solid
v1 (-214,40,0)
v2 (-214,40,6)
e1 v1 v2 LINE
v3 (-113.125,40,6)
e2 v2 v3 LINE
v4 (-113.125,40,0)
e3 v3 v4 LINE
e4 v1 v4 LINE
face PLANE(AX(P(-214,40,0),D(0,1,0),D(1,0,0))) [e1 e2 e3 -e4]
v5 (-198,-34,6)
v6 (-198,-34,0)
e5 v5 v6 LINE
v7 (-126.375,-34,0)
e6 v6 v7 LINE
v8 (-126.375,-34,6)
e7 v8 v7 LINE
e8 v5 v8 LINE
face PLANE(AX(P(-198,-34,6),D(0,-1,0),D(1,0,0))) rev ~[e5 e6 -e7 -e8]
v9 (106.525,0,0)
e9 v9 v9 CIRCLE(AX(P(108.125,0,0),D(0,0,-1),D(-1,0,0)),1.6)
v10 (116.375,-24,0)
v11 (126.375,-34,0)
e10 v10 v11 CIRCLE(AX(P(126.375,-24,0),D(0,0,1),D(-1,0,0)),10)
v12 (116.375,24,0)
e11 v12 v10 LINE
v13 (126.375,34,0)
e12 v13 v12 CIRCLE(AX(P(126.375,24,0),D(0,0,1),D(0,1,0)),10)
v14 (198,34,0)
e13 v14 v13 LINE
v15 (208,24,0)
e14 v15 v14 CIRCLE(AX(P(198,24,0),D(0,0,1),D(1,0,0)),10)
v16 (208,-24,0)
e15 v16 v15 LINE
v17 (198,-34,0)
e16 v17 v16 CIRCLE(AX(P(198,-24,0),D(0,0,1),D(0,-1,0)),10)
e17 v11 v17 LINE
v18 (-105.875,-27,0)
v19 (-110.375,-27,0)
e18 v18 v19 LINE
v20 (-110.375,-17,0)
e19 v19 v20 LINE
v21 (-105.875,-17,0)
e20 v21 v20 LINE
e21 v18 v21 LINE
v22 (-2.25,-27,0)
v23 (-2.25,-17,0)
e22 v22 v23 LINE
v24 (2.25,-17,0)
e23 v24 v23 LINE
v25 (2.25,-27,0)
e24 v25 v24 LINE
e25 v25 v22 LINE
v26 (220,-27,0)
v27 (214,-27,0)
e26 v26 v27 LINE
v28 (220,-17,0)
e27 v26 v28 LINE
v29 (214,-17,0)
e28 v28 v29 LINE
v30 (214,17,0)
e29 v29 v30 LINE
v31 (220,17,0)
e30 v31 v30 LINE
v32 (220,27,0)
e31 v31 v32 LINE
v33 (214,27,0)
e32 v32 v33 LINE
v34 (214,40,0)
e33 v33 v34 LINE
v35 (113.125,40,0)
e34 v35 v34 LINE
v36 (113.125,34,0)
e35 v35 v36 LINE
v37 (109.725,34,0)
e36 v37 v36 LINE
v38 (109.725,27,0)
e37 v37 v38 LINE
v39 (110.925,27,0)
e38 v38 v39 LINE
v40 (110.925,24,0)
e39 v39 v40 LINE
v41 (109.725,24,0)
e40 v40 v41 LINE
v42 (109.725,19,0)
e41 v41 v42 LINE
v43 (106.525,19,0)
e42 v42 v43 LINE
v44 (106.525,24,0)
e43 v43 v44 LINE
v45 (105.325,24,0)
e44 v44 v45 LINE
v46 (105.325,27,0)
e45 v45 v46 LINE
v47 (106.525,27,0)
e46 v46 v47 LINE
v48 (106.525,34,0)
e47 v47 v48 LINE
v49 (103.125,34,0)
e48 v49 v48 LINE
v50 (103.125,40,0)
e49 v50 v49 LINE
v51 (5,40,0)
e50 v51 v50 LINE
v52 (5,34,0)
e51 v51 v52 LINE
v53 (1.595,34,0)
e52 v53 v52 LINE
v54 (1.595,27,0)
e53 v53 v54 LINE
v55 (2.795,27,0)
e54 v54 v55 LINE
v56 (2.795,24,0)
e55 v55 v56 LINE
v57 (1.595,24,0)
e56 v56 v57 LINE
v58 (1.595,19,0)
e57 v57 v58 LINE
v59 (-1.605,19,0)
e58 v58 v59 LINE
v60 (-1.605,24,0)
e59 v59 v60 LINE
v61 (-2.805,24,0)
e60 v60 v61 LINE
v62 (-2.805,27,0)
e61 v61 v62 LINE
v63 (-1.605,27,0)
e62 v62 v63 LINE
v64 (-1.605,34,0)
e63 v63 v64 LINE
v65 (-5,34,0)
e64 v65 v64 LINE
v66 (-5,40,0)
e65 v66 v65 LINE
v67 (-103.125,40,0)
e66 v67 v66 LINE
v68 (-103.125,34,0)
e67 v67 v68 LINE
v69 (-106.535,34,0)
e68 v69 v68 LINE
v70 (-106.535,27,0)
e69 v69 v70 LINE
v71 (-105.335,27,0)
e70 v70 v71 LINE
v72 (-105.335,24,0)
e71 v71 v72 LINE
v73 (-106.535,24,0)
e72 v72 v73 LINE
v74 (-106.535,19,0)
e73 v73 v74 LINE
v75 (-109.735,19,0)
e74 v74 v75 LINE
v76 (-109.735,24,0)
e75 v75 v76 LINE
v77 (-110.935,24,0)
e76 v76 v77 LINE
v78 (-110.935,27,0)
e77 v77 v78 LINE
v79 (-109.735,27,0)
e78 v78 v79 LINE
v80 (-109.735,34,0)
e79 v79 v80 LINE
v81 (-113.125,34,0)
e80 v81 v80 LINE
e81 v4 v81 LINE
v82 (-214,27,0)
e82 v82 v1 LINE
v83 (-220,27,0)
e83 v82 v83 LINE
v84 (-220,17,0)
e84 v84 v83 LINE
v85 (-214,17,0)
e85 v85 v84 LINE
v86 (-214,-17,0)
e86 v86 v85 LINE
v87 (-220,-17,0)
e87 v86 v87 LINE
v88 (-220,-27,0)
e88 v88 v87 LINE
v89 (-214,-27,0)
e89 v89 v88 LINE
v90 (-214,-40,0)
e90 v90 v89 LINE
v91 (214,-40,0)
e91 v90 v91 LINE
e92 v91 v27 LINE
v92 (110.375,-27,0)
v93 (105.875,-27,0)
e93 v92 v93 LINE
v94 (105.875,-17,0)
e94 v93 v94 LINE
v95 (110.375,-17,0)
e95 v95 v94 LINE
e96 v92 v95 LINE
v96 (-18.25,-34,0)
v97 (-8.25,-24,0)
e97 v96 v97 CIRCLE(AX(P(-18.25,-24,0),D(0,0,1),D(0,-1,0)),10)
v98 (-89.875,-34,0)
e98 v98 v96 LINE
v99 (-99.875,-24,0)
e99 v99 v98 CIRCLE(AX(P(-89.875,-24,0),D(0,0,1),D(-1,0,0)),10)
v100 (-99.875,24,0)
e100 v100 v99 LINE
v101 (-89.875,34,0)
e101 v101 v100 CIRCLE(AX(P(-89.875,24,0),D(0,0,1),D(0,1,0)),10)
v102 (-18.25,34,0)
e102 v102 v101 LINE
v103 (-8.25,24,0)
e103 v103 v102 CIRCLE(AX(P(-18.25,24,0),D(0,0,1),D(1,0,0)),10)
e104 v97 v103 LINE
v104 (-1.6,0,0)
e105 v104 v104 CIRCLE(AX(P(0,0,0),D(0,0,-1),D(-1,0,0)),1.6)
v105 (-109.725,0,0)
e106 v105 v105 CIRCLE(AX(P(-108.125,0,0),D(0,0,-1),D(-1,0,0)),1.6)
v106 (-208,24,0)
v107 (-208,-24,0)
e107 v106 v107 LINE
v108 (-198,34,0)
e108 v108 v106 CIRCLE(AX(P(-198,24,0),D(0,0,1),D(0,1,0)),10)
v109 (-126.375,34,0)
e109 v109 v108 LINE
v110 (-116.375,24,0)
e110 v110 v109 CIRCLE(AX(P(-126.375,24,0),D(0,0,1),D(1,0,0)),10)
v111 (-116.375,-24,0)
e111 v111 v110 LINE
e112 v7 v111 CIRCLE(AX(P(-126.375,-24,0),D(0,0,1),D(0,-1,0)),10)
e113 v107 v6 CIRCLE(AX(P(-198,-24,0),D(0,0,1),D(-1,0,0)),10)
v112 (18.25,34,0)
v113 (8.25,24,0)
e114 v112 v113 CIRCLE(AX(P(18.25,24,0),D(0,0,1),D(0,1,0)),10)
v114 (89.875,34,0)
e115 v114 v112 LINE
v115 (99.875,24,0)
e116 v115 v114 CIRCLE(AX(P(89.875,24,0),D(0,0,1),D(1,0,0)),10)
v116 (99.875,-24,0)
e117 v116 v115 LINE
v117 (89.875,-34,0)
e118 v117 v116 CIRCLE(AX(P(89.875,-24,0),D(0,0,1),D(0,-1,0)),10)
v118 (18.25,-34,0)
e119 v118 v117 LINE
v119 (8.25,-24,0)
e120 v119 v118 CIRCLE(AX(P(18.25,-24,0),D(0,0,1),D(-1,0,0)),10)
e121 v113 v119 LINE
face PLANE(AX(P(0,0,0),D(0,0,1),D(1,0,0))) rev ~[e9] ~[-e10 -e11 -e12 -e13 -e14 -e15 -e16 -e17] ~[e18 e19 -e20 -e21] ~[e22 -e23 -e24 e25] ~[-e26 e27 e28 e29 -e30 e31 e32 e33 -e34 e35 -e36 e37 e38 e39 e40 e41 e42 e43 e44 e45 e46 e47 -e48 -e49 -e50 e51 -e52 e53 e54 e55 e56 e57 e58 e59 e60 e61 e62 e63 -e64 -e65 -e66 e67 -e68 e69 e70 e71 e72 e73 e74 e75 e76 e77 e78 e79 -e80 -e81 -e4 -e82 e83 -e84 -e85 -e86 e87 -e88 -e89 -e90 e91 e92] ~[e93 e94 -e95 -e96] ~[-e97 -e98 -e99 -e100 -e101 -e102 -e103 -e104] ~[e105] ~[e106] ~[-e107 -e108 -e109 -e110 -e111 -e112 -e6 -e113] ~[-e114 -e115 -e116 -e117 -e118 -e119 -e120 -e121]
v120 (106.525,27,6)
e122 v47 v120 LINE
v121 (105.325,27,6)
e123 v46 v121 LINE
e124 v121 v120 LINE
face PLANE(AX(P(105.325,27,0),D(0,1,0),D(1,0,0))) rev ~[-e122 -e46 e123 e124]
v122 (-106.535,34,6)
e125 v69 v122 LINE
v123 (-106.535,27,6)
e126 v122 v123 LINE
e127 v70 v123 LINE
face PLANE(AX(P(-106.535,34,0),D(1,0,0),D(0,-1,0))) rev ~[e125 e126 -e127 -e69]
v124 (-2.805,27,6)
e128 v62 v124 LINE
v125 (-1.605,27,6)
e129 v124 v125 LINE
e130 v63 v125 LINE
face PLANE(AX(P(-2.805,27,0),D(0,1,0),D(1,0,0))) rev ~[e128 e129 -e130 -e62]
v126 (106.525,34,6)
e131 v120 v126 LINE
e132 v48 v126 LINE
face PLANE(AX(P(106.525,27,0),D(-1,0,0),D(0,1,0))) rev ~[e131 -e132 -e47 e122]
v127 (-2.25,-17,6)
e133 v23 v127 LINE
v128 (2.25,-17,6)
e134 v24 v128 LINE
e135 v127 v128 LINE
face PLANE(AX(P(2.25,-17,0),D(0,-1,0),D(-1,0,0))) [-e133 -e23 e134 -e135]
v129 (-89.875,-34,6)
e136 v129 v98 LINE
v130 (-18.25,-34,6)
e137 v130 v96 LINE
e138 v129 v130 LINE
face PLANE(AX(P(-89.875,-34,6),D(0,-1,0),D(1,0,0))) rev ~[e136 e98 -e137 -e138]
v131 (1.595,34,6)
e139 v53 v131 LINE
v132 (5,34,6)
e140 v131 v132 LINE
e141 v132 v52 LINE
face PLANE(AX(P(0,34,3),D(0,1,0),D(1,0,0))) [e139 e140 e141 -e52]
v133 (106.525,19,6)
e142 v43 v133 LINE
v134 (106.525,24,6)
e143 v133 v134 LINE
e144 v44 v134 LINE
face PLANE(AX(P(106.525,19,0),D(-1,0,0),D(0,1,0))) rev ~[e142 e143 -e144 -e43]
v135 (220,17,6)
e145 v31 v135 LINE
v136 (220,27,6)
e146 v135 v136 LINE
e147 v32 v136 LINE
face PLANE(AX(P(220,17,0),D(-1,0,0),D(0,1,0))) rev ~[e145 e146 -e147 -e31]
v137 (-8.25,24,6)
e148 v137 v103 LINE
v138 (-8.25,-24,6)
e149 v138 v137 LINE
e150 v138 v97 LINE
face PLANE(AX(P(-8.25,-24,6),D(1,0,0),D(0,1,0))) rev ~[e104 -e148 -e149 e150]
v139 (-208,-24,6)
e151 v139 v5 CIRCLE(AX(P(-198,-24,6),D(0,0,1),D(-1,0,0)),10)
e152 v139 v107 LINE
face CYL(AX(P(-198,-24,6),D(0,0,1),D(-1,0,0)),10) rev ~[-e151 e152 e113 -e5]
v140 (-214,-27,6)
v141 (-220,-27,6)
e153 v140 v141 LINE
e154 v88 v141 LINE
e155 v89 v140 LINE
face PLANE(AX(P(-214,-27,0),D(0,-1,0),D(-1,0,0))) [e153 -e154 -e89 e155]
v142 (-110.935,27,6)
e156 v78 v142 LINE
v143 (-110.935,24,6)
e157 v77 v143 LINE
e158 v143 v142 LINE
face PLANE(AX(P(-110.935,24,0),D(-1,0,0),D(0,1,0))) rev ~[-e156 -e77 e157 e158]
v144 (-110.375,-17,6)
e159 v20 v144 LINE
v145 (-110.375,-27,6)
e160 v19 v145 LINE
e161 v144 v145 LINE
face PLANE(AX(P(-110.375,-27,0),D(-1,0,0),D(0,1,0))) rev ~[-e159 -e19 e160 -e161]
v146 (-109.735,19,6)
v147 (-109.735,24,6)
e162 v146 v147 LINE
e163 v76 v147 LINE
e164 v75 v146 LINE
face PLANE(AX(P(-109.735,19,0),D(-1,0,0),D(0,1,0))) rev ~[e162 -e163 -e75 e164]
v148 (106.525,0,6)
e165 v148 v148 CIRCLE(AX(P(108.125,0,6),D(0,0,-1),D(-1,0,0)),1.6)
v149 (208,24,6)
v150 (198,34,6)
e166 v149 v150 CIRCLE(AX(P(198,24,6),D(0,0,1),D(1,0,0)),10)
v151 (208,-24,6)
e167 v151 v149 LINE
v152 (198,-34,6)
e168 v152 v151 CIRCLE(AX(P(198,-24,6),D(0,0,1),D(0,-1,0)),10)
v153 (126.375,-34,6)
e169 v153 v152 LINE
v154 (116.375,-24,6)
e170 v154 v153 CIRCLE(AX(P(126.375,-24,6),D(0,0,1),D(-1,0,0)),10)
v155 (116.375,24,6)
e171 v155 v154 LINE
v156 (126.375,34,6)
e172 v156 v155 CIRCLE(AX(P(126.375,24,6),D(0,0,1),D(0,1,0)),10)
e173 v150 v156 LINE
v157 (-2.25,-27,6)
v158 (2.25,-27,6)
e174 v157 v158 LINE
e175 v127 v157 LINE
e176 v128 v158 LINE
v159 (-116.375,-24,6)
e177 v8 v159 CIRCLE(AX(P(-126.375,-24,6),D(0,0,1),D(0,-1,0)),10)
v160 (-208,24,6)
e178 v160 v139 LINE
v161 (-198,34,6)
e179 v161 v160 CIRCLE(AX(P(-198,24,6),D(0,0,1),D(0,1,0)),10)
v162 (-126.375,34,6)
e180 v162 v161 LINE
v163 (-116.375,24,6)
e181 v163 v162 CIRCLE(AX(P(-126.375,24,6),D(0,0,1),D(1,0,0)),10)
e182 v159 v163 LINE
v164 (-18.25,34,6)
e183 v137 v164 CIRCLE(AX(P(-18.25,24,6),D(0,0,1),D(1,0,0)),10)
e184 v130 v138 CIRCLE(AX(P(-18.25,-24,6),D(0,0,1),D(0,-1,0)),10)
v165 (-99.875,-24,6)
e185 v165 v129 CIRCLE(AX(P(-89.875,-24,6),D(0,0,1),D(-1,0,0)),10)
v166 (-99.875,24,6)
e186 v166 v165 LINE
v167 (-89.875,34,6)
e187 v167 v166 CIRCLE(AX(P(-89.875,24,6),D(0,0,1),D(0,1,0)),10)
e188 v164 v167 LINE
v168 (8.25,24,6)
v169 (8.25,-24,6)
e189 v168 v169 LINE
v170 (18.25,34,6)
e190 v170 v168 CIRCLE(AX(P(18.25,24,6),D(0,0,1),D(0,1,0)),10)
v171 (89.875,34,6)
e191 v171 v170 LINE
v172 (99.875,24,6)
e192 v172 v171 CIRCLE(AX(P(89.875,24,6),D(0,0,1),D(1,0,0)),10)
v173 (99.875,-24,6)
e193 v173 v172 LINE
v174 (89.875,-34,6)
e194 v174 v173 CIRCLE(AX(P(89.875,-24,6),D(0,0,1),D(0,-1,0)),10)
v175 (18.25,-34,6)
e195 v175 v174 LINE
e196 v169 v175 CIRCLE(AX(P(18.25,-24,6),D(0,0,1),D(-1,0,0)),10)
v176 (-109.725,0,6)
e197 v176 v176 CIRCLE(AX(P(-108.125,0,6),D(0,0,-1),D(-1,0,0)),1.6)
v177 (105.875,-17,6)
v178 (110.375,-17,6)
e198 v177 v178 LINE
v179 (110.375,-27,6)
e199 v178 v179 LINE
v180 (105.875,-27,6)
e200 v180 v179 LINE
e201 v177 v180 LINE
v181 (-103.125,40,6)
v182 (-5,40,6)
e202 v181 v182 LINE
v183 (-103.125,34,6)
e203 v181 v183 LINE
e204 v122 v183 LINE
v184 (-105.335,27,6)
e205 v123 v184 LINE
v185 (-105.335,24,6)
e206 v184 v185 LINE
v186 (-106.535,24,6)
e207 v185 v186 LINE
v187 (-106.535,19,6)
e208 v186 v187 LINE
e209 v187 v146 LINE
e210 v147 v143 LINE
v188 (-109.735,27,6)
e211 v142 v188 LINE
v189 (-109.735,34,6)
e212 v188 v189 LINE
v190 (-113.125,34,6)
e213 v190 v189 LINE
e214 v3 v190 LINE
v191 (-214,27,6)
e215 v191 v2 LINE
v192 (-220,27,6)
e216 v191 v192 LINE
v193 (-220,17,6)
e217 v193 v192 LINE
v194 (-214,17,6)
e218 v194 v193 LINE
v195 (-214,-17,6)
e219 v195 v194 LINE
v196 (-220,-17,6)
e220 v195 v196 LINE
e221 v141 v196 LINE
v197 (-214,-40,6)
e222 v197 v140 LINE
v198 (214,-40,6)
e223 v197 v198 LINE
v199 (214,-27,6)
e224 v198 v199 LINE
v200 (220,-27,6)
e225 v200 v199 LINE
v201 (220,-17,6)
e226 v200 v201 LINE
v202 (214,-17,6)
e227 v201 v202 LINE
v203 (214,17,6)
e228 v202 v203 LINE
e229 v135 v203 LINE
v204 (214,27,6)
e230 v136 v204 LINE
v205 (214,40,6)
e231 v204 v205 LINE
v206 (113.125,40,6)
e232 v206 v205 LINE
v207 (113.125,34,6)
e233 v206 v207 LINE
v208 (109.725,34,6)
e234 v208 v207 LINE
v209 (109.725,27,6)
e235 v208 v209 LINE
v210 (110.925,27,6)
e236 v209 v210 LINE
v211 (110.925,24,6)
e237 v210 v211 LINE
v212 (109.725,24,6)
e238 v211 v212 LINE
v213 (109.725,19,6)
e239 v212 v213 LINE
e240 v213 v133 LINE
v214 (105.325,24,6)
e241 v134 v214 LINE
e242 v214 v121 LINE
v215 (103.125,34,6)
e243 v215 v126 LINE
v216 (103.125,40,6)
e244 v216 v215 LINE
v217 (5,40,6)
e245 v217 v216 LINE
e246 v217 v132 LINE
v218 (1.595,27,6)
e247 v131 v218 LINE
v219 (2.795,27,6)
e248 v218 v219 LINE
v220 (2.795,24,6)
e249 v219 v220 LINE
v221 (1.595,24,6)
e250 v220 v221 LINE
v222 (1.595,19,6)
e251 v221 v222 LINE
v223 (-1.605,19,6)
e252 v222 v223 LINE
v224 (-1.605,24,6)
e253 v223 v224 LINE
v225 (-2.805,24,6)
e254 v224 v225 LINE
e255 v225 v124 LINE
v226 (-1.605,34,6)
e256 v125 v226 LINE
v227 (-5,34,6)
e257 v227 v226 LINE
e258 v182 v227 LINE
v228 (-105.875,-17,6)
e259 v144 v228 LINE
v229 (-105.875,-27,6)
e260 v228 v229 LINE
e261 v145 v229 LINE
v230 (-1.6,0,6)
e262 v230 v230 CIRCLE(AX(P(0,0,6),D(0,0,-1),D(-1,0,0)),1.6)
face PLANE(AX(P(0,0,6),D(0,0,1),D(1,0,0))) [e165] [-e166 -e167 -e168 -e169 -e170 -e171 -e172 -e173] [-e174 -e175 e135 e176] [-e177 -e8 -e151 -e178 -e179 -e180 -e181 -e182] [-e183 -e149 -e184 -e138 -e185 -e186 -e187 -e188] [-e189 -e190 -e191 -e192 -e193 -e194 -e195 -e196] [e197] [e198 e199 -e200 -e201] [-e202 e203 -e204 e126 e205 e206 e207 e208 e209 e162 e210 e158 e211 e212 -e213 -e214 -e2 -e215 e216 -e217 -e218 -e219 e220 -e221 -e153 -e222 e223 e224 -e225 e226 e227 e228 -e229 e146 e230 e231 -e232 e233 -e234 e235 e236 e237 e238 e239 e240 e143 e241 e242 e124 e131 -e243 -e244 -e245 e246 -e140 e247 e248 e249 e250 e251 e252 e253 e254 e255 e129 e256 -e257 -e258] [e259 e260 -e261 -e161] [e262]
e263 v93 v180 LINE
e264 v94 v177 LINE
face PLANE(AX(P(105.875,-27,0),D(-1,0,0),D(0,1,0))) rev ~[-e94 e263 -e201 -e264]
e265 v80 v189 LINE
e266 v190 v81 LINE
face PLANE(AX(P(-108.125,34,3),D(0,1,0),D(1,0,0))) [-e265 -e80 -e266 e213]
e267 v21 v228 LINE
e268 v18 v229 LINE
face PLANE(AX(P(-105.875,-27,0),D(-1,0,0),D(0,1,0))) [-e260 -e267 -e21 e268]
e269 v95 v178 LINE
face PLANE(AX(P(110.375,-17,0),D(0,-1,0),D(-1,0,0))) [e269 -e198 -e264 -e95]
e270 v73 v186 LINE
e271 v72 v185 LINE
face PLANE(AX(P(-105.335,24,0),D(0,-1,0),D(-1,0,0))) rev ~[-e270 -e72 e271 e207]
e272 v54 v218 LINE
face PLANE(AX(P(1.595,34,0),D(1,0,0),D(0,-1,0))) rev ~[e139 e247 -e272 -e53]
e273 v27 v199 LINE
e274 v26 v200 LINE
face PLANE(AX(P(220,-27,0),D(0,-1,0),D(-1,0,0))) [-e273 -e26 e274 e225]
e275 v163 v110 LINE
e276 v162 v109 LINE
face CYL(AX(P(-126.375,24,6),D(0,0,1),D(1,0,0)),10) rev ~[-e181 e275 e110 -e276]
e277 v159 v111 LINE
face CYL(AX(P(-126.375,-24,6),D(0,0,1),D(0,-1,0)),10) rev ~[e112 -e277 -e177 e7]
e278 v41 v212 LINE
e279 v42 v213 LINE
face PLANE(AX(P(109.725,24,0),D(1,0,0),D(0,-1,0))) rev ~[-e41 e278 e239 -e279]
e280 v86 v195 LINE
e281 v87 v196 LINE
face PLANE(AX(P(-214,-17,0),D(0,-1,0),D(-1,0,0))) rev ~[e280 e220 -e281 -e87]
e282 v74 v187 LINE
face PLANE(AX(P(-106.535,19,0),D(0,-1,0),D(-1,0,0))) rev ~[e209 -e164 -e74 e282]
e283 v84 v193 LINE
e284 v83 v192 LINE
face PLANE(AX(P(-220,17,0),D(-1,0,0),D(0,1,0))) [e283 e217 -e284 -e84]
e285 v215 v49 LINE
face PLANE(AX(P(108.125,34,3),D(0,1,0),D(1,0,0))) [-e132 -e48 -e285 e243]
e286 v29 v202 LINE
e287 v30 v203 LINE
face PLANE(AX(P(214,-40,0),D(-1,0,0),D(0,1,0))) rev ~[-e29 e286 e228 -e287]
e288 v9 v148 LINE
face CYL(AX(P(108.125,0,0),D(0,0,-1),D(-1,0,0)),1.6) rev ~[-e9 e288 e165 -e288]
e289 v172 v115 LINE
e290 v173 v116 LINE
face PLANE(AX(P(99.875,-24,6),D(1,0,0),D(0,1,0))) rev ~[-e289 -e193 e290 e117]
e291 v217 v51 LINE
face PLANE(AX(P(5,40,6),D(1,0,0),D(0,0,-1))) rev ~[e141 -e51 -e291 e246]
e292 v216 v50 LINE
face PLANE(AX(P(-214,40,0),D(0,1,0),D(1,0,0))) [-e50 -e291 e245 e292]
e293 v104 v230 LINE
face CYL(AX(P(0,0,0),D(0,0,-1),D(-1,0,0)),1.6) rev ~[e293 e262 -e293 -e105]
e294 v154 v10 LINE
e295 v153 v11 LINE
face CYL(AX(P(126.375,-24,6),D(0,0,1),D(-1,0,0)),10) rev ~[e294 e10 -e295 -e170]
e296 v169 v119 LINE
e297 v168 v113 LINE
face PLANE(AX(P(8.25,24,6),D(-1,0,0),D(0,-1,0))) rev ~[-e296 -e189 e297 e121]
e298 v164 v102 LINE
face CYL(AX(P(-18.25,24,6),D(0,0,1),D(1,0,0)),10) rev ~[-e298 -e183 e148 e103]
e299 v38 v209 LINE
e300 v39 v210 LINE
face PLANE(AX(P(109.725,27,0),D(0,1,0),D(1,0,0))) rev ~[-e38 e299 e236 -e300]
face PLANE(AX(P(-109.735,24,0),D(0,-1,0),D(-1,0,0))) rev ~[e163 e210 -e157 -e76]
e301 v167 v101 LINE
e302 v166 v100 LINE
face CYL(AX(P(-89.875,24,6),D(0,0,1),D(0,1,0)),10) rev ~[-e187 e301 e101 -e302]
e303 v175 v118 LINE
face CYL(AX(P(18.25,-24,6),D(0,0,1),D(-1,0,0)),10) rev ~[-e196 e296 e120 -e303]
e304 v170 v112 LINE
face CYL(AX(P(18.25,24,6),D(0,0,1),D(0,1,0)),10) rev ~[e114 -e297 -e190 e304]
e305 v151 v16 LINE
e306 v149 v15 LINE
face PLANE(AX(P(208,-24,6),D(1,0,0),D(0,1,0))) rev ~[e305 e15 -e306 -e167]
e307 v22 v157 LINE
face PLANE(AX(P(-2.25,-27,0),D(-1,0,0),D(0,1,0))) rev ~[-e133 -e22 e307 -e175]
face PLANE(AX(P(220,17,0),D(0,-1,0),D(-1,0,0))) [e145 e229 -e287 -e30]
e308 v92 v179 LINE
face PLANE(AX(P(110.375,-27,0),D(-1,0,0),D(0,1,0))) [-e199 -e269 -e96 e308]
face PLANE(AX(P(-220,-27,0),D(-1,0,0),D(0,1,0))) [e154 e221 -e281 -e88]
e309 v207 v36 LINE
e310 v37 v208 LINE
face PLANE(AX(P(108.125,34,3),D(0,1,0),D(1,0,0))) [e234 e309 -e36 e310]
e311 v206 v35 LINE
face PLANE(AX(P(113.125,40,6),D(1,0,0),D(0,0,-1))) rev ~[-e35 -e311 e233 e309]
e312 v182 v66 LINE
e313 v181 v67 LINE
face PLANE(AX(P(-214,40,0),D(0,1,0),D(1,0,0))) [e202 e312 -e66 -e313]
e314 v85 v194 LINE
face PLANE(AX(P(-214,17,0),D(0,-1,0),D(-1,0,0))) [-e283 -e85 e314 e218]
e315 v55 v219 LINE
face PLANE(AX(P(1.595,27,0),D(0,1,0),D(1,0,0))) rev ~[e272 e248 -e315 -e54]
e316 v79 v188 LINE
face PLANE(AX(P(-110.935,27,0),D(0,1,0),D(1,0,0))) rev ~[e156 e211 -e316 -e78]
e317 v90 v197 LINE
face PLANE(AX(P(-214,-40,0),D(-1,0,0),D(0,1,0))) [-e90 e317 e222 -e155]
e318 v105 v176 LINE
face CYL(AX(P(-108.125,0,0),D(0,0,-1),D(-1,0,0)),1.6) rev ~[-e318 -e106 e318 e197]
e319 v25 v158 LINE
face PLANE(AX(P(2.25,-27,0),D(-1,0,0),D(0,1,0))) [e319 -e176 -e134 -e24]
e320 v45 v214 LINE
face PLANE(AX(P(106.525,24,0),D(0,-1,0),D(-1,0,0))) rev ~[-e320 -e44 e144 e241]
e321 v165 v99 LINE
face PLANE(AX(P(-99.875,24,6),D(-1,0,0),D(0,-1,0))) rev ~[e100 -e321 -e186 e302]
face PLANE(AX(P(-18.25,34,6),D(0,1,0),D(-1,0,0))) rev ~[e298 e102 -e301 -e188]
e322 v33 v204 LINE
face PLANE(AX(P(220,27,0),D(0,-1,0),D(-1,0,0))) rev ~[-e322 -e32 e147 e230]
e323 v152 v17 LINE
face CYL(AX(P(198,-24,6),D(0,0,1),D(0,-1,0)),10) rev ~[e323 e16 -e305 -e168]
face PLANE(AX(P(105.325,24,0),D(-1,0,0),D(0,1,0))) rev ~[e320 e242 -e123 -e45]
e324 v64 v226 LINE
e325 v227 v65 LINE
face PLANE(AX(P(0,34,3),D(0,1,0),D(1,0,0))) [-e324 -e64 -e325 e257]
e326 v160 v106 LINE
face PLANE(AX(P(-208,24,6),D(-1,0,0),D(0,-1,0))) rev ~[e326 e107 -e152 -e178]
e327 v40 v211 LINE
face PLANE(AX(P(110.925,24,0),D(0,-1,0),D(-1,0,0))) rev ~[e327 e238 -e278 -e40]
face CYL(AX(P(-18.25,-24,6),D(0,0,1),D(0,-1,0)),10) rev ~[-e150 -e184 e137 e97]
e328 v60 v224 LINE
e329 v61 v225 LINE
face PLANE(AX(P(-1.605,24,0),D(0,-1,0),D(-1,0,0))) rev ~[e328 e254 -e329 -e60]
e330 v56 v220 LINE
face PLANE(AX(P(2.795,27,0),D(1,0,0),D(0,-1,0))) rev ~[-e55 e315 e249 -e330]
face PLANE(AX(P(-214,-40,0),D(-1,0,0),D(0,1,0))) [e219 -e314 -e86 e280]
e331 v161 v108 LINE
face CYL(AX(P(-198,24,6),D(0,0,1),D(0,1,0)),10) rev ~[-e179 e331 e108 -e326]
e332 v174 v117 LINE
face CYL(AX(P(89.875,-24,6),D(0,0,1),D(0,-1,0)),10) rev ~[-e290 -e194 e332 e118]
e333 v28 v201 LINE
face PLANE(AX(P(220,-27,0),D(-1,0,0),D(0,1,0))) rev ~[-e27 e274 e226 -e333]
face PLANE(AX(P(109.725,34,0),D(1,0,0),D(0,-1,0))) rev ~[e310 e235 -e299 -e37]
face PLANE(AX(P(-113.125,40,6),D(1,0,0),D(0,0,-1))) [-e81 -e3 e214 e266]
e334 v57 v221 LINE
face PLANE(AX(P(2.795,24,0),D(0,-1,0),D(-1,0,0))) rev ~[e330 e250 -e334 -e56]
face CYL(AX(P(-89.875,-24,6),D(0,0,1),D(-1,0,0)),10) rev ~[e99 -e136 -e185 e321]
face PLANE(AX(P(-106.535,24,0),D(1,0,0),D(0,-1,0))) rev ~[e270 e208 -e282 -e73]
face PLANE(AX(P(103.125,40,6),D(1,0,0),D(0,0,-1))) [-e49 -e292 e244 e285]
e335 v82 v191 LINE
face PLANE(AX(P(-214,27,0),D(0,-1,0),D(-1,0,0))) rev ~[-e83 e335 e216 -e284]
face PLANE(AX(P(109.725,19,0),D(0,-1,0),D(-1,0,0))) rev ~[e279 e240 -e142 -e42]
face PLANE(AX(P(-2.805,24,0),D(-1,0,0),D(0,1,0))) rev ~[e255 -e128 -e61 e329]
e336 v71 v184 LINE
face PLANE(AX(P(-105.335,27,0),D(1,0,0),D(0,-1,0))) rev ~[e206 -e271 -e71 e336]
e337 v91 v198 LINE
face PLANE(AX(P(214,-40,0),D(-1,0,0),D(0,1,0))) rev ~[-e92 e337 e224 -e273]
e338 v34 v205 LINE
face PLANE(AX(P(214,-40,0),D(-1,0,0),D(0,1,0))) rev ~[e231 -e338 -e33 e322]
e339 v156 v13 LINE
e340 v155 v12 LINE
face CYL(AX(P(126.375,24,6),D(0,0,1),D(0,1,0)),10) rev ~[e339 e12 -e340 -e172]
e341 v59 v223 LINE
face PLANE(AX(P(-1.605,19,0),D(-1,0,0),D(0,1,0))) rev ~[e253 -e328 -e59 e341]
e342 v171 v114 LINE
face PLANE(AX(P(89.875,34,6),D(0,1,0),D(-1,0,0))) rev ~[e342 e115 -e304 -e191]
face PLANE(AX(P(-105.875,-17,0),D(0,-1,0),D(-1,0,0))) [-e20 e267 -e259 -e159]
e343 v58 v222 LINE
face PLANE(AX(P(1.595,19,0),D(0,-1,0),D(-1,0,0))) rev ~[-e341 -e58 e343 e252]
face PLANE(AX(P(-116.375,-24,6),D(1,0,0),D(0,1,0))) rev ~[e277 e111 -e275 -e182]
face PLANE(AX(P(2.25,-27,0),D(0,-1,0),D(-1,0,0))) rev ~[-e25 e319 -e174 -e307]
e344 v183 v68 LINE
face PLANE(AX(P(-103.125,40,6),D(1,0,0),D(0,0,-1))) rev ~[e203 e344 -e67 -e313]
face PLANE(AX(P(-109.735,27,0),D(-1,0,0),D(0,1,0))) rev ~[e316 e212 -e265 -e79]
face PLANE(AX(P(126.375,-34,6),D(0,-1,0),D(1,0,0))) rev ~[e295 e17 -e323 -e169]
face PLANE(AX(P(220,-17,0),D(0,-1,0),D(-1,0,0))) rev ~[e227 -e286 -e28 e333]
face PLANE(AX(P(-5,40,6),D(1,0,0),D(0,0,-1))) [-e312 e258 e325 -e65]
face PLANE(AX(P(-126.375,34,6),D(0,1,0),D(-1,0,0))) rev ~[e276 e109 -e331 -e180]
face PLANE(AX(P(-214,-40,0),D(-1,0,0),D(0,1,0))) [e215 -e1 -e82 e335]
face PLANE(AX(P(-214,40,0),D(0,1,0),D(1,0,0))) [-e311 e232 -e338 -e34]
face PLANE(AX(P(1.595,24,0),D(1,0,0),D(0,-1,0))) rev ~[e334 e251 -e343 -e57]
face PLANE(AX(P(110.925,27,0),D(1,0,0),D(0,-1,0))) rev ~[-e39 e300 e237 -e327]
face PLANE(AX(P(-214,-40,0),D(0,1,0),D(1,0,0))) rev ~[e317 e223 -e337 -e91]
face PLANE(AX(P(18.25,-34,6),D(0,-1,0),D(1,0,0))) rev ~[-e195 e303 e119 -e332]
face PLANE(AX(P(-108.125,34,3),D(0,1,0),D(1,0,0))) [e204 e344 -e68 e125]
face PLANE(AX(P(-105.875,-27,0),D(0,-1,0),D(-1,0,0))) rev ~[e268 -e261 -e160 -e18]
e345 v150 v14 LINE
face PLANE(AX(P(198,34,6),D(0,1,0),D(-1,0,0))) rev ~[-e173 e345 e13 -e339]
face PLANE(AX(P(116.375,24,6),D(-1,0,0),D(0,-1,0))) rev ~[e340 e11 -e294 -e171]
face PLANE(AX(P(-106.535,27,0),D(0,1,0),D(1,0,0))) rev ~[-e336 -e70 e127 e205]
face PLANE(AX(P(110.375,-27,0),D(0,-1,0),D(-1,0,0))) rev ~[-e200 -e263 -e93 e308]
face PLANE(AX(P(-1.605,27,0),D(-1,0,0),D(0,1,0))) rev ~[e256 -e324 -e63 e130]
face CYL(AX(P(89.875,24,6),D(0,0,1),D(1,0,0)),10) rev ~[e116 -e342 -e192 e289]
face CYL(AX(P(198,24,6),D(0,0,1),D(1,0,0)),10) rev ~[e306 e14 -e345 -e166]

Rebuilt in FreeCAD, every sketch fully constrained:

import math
import FreeCAD as App
import Part
import Sketcher
Q = App.Units.Quantity

doc = App.newDocument("Part")
body = doc.addObject("PartDesign::Body", "Body")

# Sketch on XY plane
sketch1 = body.newObject("Sketcher::SketchObject", "Sketch")
sketch1.AttachmentSupport = (doc.getObject("XY_Plane"), [""])
sketch1.MapMode = "FlatFace"
sketch1.addGeometry([
    Part.LineSegment(App.Vector(-214, 40, 0), App.Vector(-214, -40, 0)),
    Part.LineSegment(App.Vector(-214, -40, 0), App.Vector(214, -40, 0)),
    Part.LineSegment(App.Vector(214, -40, 0), App.Vector(214, 40, 0)),
    Part.LineSegment(App.Vector(214, 40, 0), App.Vector(-214, 40, 0)),
], False)
sketch1.addConstraint([
    Sketcher.Constraint("Coincident", 0, 2, 1, 1),
    Sketcher.Constraint("Coincident", 1, 2, 2, 1),
    Sketcher.Constraint("Coincident", 2, 2, 3, 1),
    Sketcher.Constraint("Coincident", 3, 2, 0, 1),
    Sketcher.Constraint("Vertical", 0),
    Sketcher.Constraint("Horizontal", 1),
    Sketcher.Constraint("Vertical", 2),
    Sketcher.Constraint("Horizontal", 3),
    Sketcher.Constraint("Symmetric", 0, 2, 2, 2, -1, 1),
    Sketcher.Constraint("DistanceX", 1, 1, 1, 2, Q("428 mm")),
    Sketcher.Constraint("DistanceY", 0, 2, 0, 1, Q("80 mm")),
])
pad1 = body.newObject("PartDesign::Pad", "Pad")
pad1.Profile = sketch1
pad1.Length = 6

# Sketch on XY plane
sketch2 = body.newObject("Sketcher::SketchObject", "Sketch001")
sketch2.AttachmentSupport = (doc.getObject("XY_Plane"), [""])
sketch2.MapMode = "FlatFace"
sketch2.AttachmentOffset = App.Placement(App.Vector(0, 0, 6), App.Rotation())
sketch2.addGeometry([
    Part.LineSegment(App.Vector(-116, -24, 0), App.Vector(-116, 24, 0)),  # 0
    Part.ArcOfCircle(Part.Circle(App.Vector(-126, 24, 0), App.Vector(0, 0, 1), 10), math.radians(0), math.radians(90)),  # 1
    Part.LineSegment(App.Vector(-126, 34, 0), App.Vector(-198, 34, 0)),  # 2
    Part.ArcOfCircle(Part.Circle(App.Vector(-198, 24, 0), App.Vector(0, 0, 1), 10), math.radians(90), math.radians(180)),  # 3
    Part.LineSegment(App.Vector(-208, 24, 0), App.Vector(-208, -24, 0)),  # 4
    Part.ArcOfCircle(Part.Circle(App.Vector(-198, -24, 0), App.Vector(0, 0, 1), 10), math.radians(180), math.radians(270)),  # 5
    Part.LineSegment(App.Vector(-198, -34, 0), App.Vector(-126, -34, 0)),  # 6
    Part.ArcOfCircle(Part.Circle(App.Vector(-126, -24, 0), App.Vector(0, 0, 1), 10), math.radians(-90), math.radians(0)),  # 7
], False)
sketch2.addConstraint([
    Sketcher.Constraint("Tangent", 0, 2, 1, 1),
    Sketcher.Constraint("Tangent", 1, 2, 2, 1),
    Sketcher.Constraint("Tangent", 2, 2, 3, 1),
    Sketcher.Constraint("Tangent", 3, 2, 4, 1),
    Sketcher.Constraint("Tangent", 4, 2, 5, 1),
    Sketcher.Constraint("Tangent", 5, 2, 6, 1),
    Sketcher.Constraint("Tangent", 6, 2, 7, 1),
    Sketcher.Constraint("Tangent", 7, 2, 0, 1),
    Sketcher.Constraint("Vertical", 0),
    Sketcher.Constraint("Horizontal", 2),
    Sketcher.Constraint("Vertical", 4),
    Sketcher.Constraint("Horizontal", 6),
    Sketcher.Constraint("Equal", 1, 3),
    Sketcher.Constraint("Equal", 3, 5),
    Sketcher.Constraint("Equal", 5, 7),
    Sketcher.Constraint("Radius", 1, Q("10 mm")),
    Sketcher.Constraint("DistanceY", 0, 1, 0, 2, Q("48 mm")),
    Sketcher.Constraint("DistanceY", -1, 1, 1, 3, Q("24 mm")),
    Sketcher.Constraint("DistanceX", 3, 3, -1, 1, Q("198 mm")),
    Sketcher.Constraint("DistanceX", 2, 2, 2, 1, Q("71.625 mm")),
])
pocket1 = body.newObject("PartDesign::Pocket", "Pocket")
pocket1.Profile = sketch2
pocket1.Length = 6
doc.recompute()

linearpattern = body.newObject("PartDesign::LinearPattern", "LinearPattern")
linearpattern.Originals = [pocket1]
linearpattern.Direction = (doc.getObject("X_Axis"), [""])
linearpattern.Mode = "offset"
linearpattern.Offset = 108.125
linearpattern.Occurrences = 4
body.Tip = linearpattern

# Sketch on XY plane
sketch3 = body.newObject("Sketcher::SketchObject", "Sketch002")
sketch3.AttachmentSupport = (doc.getObject("XY_Plane"), [""])
sketch3.MapMode = "FlatFace"
sketch3.addGeometry([
    Part.Circle(App.Vector(-108.1, 0, 0), App.Vector(0, 0, 1), 1.6),  # 0
    Part.Circle(App.Vector(0, 0, 0), App.Vector(0, 0, 1), 1.6),  # 1
    Part.Circle(App.Vector(108.1, 0, 0), App.Vector(0, 0, 1), 1.6),  # 2
    Part.LineSegment(App.Vector(110.4, -17, 0), App.Vector(110.4, -27, 0)),  # 3
    Part.LineSegment(App.Vector(110.4, -27, 0), App.Vector(105.9, -27, 0)),  # 4
    Part.LineSegment(App.Vector(105.9, -27, 0), App.Vector(105.9, -17, 0)),  # 5
    Part.LineSegment(App.Vector(105.9, -17, 0), App.Vector(110.4, -17, 0)),  # 6
    Part.LineSegment(App.Vector(2.2, -17, 0), App.Vector(2.2, -27, 0)),  # 7
    Part.LineSegment(App.Vector(2.2, -27, 0), App.Vector(-2.2, -27, 0)),  # 8
    Part.LineSegment(App.Vector(-2.2, -27, 0), App.Vector(-2.2, -17, 0)),  # 9
    Part.LineSegment(App.Vector(-2.2, -17, 0), App.Vector(2.2, -17, 0)),  # 10
    Part.LineSegment(App.Vector(-105.9, -17, 0), App.Vector(-105.9, -27, 0)),  # 11
    Part.LineSegment(App.Vector(-105.9, -27, 0), App.Vector(-110.4, -27, 0)),  # 12
    Part.LineSegment(App.Vector(-110.4, -27, 0), App.Vector(-110.4, -17, 0)),  # 13
    Part.LineSegment(App.Vector(-110.4, -17, 0), App.Vector(-105.9, -17, 0)),  # 14
], False)
sketch3.addConstraint([
    Sketcher.Constraint("Coincident", 3, 2, 4, 1),
    Sketcher.Constraint("Coincident", 4, 2, 5, 1),
    Sketcher.Constraint("Coincident", 5, 2, 6, 1),
    Sketcher.Constraint("Coincident", 6, 2, 3, 1),
    Sketcher.Constraint("Coincident", 7, 2, 8, 1),
    Sketcher.Constraint("Coincident", 8, 2, 9, 1),
    Sketcher.Constraint("Coincident", 9, 2, 10, 1),
    Sketcher.Constraint("Coincident", 10, 2, 7, 1),
    Sketcher.Constraint("Coincident", 11, 2, 12, 1),
    Sketcher.Constraint("Coincident", 12, 2, 13, 1),
    Sketcher.Constraint("Coincident", 13, 2, 14, 1),
    Sketcher.Constraint("Coincident", 14, 2, 11, 1),
    Sketcher.Constraint("Vertical", 3),
    Sketcher.Constraint("Horizontal", 4),
    Sketcher.Constraint("Vertical", 5),
    Sketcher.Constraint("Horizontal", 6),
    Sketcher.Constraint("Vertical", 7),
    Sketcher.Constraint("Horizontal", 8),
    Sketcher.Constraint("Vertical", 9),
    Sketcher.Constraint("Horizontal", 10),
    Sketcher.Constraint("Vertical", 11),
    Sketcher.Constraint("Horizontal", 12),
    Sketcher.Constraint("Vertical", 13),
    Sketcher.Constraint("Horizontal", 14),
    Sketcher.Constraint("Coincident", 1, 3, -1, 1),
    Sketcher.Constraint("Equal", 0, 1),
    Sketcher.Constraint("Equal", 1, 2),
    Sketcher.Constraint("Symmetric", 0, 3, 2, 3, -1, 1),
    Sketcher.Constraint("Symmetric", 4, 2, 11, 2, -2),
    Sketcher.Constraint("Symmetric", 6, 2, 13, 2, -2),
    Sketcher.Constraint("PointOnObject", 0, 3, -1),
    Sketcher.Constraint("Horizontal", 4, 2, 7, 2),
    Sketcher.Constraint("Horizontal", 6, 2, 9, 2),
    Sketcher.Constraint("Equal", 6, 8),
    Sketcher.Constraint("Diameter", 0, Q("3.2 mm")),
    Sketcher.Constraint("DistanceY", 3, 2, 3, 1, Q("10 mm")),
    Sketcher.Constraint("DistanceX", 4, 2, 4, 1, Q("4.5 mm")),
    Sketcher.Constraint("DistanceY", 3, 2, -1, 1, Q("27 mm")),
    Sketcher.Constraint("DistanceX", 0, 3, 4, 2, Q("214 mm")),
    Sketcher.Constraint("DistanceX", -1, 1, 7, 2, Q("2.25 mm")),
    Sketcher.Constraint("DistanceX", 0, 3, 2, 3, Q("216.25 mm")),
])
pocket2 = body.newObject("PartDesign::Pocket", "Pocket001")
pocket2.Profile = sketch3
pocket2.Type = "ThroughAll"
pocket2.Reversed = True

# Sketch on XY plane
sketch4 = body.newObject("Sketcher::SketchObject", "Sketch003")
sketch4.AttachmentSupport = (doc.getObject("XY_Plane"), [""])
sketch4.MapMode = "FlatFace"
sketch4.addGeometry([
    Part.LineSegment(App.Vector(220, 27, 0), App.Vector(220, 17, 0)),  # 0
    Part.LineSegment(App.Vector(220, 17, 0), App.Vector(214, 17, 0)),  # 1
    Part.LineSegment(App.Vector(214, 17, 0), App.Vector(214, 27, 0)),  # 2
    Part.LineSegment(App.Vector(214, 27, 0), App.Vector(220, 27, 0)),  # 3
    Part.LineSegment(App.Vector(220, -17, 0), App.Vector(220, -27, 0)),  # 4
    Part.LineSegment(App.Vector(220, -27, 0), App.Vector(214, -27, 0)),  # 5
    Part.LineSegment(App.Vector(214, -27, 0), App.Vector(214, -17, 0)),  # 6
    Part.LineSegment(App.Vector(214, -17, 0), App.Vector(220, -17, 0)),  # 7
    Part.LineSegment(App.Vector(-214, -17, 0), App.Vector(-214, -27, 0)),  # 8
    Part.LineSegment(App.Vector(-214, -27, 0), App.Vector(-220, -27, 0)),  # 9
    Part.LineSegment(App.Vector(-220, -27, 0), App.Vector(-220, -17, 0)),  # 10
    Part.LineSegment(App.Vector(-220, -17, 0), App.Vector(-214, -17, 0)),  # 11
    Part.LineSegment(App.Vector(-214, 27, 0), App.Vector(-214, 17, 0)),  # 12
    Part.LineSegment(App.Vector(-214, 17, 0), App.Vector(-220, 17, 0)),  # 13
    Part.LineSegment(App.Vector(-220, 17, 0), App.Vector(-220, 27, 0)),  # 14
    Part.LineSegment(App.Vector(-220, 27, 0), App.Vector(-214, 27, 0)),  # 15
], False)
sketch4.addConstraint([
    Sketcher.Constraint("Coincident", 0, 2, 1, 1),
    Sketcher.Constraint("Coincident", 1, 2, 2, 1),
    Sketcher.Constraint("Coincident", 2, 2, 3, 1),
    Sketcher.Constraint("Coincident", 3, 2, 0, 1),
    Sketcher.Constraint("Coincident", 4, 2, 5, 1),
    Sketcher.Constraint("Coincident", 5, 2, 6, 1),
    Sketcher.Constraint("Coincident", 6, 2, 7, 1),
    Sketcher.Constraint("Coincident", 7, 2, 4, 1),
    Sketcher.Constraint("Coincident", 8, 2, 9, 1),
    Sketcher.Constraint("Coincident", 9, 2, 10, 1),
    Sketcher.Constraint("Coincident", 10, 2, 11, 1),
    Sketcher.Constraint("Coincident", 11, 2, 8, 1),
    Sketcher.Constraint("Coincident", 12, 2, 13, 1),
    Sketcher.Constraint("Coincident", 13, 2, 14, 1),
    Sketcher.Constraint("Coincident", 14, 2, 15, 1),
    Sketcher.Constraint("Coincident", 15, 2, 12, 1),
    Sketcher.Constraint("Vertical", 0),
    Sketcher.Constraint("Horizontal", 1),
    Sketcher.Constraint("Vertical", 2),
    Sketcher.Constraint("Horizontal", 3),
    Sketcher.Constraint("Vertical", 4),
    Sketcher.Constraint("Horizontal", 5),
    Sketcher.Constraint("Vertical", 6),
    Sketcher.Constraint("Horizontal", 7),
    Sketcher.Constraint("Vertical", 8),
    Sketcher.Constraint("Horizontal", 9),
    Sketcher.Constraint("Vertical", 10),
    Sketcher.Constraint("Horizontal", 11),
    Sketcher.Constraint("Vertical", 12),
    Sketcher.Constraint("Horizontal", 13),
    Sketcher.Constraint("Vertical", 14),
    Sketcher.Constraint("Horizontal", 15),
    Sketcher.Constraint("Symmetric", 2, 2, 8, 2, -1, 1),
    Sketcher.Constraint("Symmetric", 0, 2, 10, 2, -1, 1),
    Sketcher.Constraint("Symmetric", 6, 2, 12, 2, -1, 1),
    Sketcher.Constraint("Symmetric", 4, 2, 14, 2, -1, 1),
    Sketcher.Constraint("Symmetric", 5, 2, 8, 2, -2),
    Sketcher.Constraint("Symmetric", 7, 2, 10, 2, -2),
    Sketcher.Constraint("DistanceX", 1, 2, 1, 1, Q("6 mm")),
    Sketcher.Constraint("DistanceY", 0, 2, 0, 1, Q("10 mm")),
    Sketcher.Constraint("DistanceX", -1, 1, 0, 2, Q("220 mm")),
    Sketcher.Constraint("DistanceY", -1, 1, 0, 2, Q("17 mm")),
])
pad2 = body.newObject("PartDesign::Pad", "Pad001")
pad2.Profile = sketch4
pad2.Length = 6

# Sketch on XZ plane
sketch5 = body.newObject("Sketcher::SketchObject", "Sketch004")
sketch5.AttachmentSupport = (doc.getObject("XZ_Plane"), [""])
sketch5.MapMode = "FlatFace"
sketch5.AttachmentOffset = App.Placement(App.Vector(0, 0, -40), App.Rotation())
sketch5.addGeometry([
    Part.LineSegment(App.Vector(-113, 0, 0), App.Vector(-113, 6, 0)),  # 0
    Part.LineSegment(App.Vector(-113, 6, 0), App.Vector(-103, 6, 0)),  # 1
    Part.LineSegment(App.Vector(-103, 6, 0), App.Vector(-103, 0, 0)),  # 2
    Part.LineSegment(App.Vector(-103, 0, 0), App.Vector(-113, 0, 0)),  # 3
    Part.LineSegment(App.Vector(-5, 0, 0), App.Vector(-5, 6, 0)),  # 4
    Part.LineSegment(App.Vector(-5, 6, 0), App.Vector(5, 6, 0)),  # 5
    Part.LineSegment(App.Vector(5, 6, 0), App.Vector(5, 0, 0)),  # 6
    Part.LineSegment(App.Vector(5, 0, 0), App.Vector(-5, 0, 0)),  # 7
    Part.LineSegment(App.Vector(103, 0, 0), App.Vector(103, 6, 0)),  # 8
    Part.LineSegment(App.Vector(103, 6, 0), App.Vector(113, 6, 0)),  # 9
    Part.LineSegment(App.Vector(113, 6, 0), App.Vector(113, 0, 0)),  # 10
    Part.LineSegment(App.Vector(113, 0, 0), App.Vector(103, 0, 0)),  # 11
], False)
sketch5.addConstraint([
    Sketcher.Constraint("Coincident", 0, 2, 1, 1),
    Sketcher.Constraint("Coincident", 1, 2, 2, 1),
    Sketcher.Constraint("Coincident", 2, 2, 3, 1),
    Sketcher.Constraint("Coincident", 3, 2, 0, 1),
    Sketcher.Constraint("Coincident", 4, 2, 5, 1),
    Sketcher.Constraint("Coincident", 5, 2, 6, 1),
    Sketcher.Constraint("Coincident", 6, 2, 7, 1),
    Sketcher.Constraint("Coincident", 7, 2, 4, 1),
    Sketcher.Constraint("Coincident", 8, 2, 9, 1),
    Sketcher.Constraint("Coincident", 9, 2, 10, 1),
    Sketcher.Constraint("Coincident", 10, 2, 11, 1),
    Sketcher.Constraint("Coincident", 11, 2, 8, 1),
    Sketcher.Constraint("Vertical", 0),
    Sketcher.Constraint("Horizontal", 1),
    Sketcher.Constraint("Vertical", 2),
    Sketcher.Constraint("Horizontal", 3),
    Sketcher.Constraint("Vertical", 4),
    Sketcher.Constraint("Horizontal", 5),
    Sketcher.Constraint("Vertical", 6),
    Sketcher.Constraint("Horizontal", 7),
    Sketcher.Constraint("Vertical", 8),
    Sketcher.Constraint("Horizontal", 9),
    Sketcher.Constraint("Vertical", 10),
    Sketcher.Constraint("Horizontal", 11),
    Sketcher.Constraint("Symmetric", 6, 2, 7, 2, -1, 1),
    Sketcher.Constraint("Symmetric", 3, 2, 10, 2, -1, 1),
    Sketcher.Constraint("Symmetric", 1, 2, 8, 2, -2),
    Sketcher.Constraint("PointOnObject", 2, 2, -1),
    Sketcher.Constraint("Horizontal", 1, 2, 4, 2),
    Sketcher.Constraint("Equal", 3, 5),
    Sketcher.Constraint("DistanceX", 1, 1, 1, 2, Q("10 mm")),
    Sketcher.Constraint("DistanceY", 0, 1, 0, 2, Q("6 mm")),
    Sketcher.Constraint("DistanceX", 1, 2, 8, 2, Q("206.25 mm")),
])
pocket3 = body.newObject("PartDesign::Pocket", "Pocket002")
pocket3.Profile = sketch5
pocket3.Length = 6
pocket3.Reversed = True

# Sketch on XY plane
sketch6 = body.newObject("Sketcher::SketchObject", "Sketch005")
sketch6.AttachmentSupport = (doc.getObject("XY_Plane"), [""])
sketch6.MapMode = "FlatFace"
sketch6.addGeometry([
    Part.LineSegment(App.Vector(109.7, 34, 0), App.Vector(109.7, 27, 0)),  # 0
    Part.LineSegment(App.Vector(109.7, 27, 0), App.Vector(110.9, 27, 0)),  # 1
    Part.LineSegment(App.Vector(110.9, 27, 0), App.Vector(110.9, 24, 0)),  # 2
    Part.LineSegment(App.Vector(110.9, 24, 0), App.Vector(109.7, 24, 0)),  # 3
    Part.LineSegment(App.Vector(109.7, 24, 0), App.Vector(109.7, 19, 0)),  # 4
    Part.LineSegment(App.Vector(109.7, 19, 0), App.Vector(106.5, 19, 0)),  # 5
    Part.LineSegment(App.Vector(106.5, 19, 0), App.Vector(106.5, 24, 0)),  # 6
    Part.LineSegment(App.Vector(106.5, 24, 0), App.Vector(105.3, 24, 0)),  # 7
    Part.LineSegment(App.Vector(105.3, 24, 0), App.Vector(105.3, 27, 0)),  # 8
    Part.LineSegment(App.Vector(105.3, 27, 0), App.Vector(106.5, 27, 0)),  # 9
    Part.LineSegment(App.Vector(106.5, 27, 0), App.Vector(106.5, 34, 0)),  # 10
    Part.LineSegment(App.Vector(106.5, 34, 0), App.Vector(109.7, 34, 0)),  # 11
], False)
sketch6.addConstraint([
    Sketcher.Constraint("Coincident", 0, 2, 1, 1),
    Sketcher.Constraint("Coincident", 1, 2, 2, 1),
    Sketcher.Constraint("Coincident", 2, 2, 3, 1),
    Sketcher.Constraint("Coincident", 3, 2, 4, 1),
    Sketcher.Constraint("Coincident", 4, 2, 5, 1),
    Sketcher.Constraint("Coincident", 5, 2, 6, 1),
    Sketcher.Constraint("Coincident", 6, 2, 7, 1),
    Sketcher.Constraint("Coincident", 7, 2, 8, 1),
    Sketcher.Constraint("Coincident", 8, 2, 9, 1),
    Sketcher.Constraint("Coincident", 9, 2, 10, 1),
    Sketcher.Constraint("Coincident", 10, 2, 11, 1),
    Sketcher.Constraint("Coincident", 11, 2, 0, 1),
    Sketcher.Constraint("Vertical", 0),
    Sketcher.Constraint("Horizontal", 1),
    Sketcher.Constraint("Vertical", 2),
    Sketcher.Constraint("Horizontal", 3),
    Sketcher.Constraint("Vertical", 4),
    Sketcher.Constraint("Horizontal", 5),
    Sketcher.Constraint("Vertical", 6),
    Sketcher.Constraint("Horizontal", 7),
    Sketcher.Constraint("Vertical", 8),
    Sketcher.Constraint("Horizontal", 9),
    Sketcher.Constraint("Vertical", 10),
    Sketcher.Constraint("Horizontal", 11),
    Sketcher.Constraint("Horizontal", 3, 2, 6, 2),
    Sketcher.Constraint("Horizontal", 1, 2, 8, 2),
    Sketcher.Constraint("Vertical", 0, 2, 3, 2),
    Sketcher.Constraint("Vertical", 6, 2, 9, 2),
    Sketcher.Constraint("Equal", 3, 7),
    Sketcher.Constraint("DistanceY", 0, 2, 0, 1, Q("7 mm")),
    Sketcher.Constraint("DistanceY", 2, 2, 2, 1, Q("3 mm")),
    Sketcher.Constraint("DistanceY", 4, 2, 4, 1, Q("5 mm")),
    Sketcher.Constraint("DistanceX", 1, 1, 1, 2, Q("1.2 mm")),
    Sketcher.Constraint("DistanceX", 5, 2, 5, 1, Q("3.2 mm")),
    Sketcher.Constraint("DistanceY", -1, 1, 0, 2, Q("27 mm")),
    Sketcher.Constraint("DistanceX", -1, 1, 0, 2, Q("109.725 mm")),
])
pocket4 = body.newObject("PartDesign::Pocket", "Pocket003")
pocket4.Profile = sketch6
pocket4.Type = "UpToFirst"
pocket4.Reversed = True

# Sketch on XY plane
sketch7 = body.newObject("Sketcher::SketchObject", "Sketch006")
sketch7.AttachmentSupport = (doc.getObject("XY_Plane"), [""])
sketch7.MapMode = "FlatFace"
sketch7.addGeometry([
    Part.LineSegment(App.Vector(1.6, 27, 0), App.Vector(2.8, 27, 0)),  # 0
    Part.LineSegment(App.Vector(2.8, 27, 0), App.Vector(2.8, 24, 0)),  # 1
    Part.LineSegment(App.Vector(2.8, 24, 0), App.Vector(1.6, 24, 0)),  # 2
    Part.LineSegment(App.Vector(1.6, 24, 0), App.Vector(1.6, 19, 0)),  # 3
    Part.LineSegment(App.Vector(1.6, 19, 0), App.Vector(-1.6, 19, 0)),  # 4
    Part.LineSegment(App.Vector(-1.6, 19, 0), App.Vector(-1.6, 24, 0)),  # 5
    Part.LineSegment(App.Vector(-1.6, 24, 0), App.Vector(-2.8, 24, 0)),  # 6
    Part.LineSegment(App.Vector(-2.8, 24, 0), App.Vector(-2.8, 27, 0)),  # 7
    Part.LineSegment(App.Vector(-2.8, 27, 0), App.Vector(-1.6, 27, 0)),  # 8
    Part.LineSegment(App.Vector(-1.6, 27, 0), App.Vector(-1.6, 34, 0)),  # 9
    Part.LineSegment(App.Vector(-1.6, 34, 0), App.Vector(1.6, 34, 0)),  # 10
    Part.LineSegment(App.Vector(1.6, 34, 0), App.Vector(1.6, 27, 0)),  # 11
], False)
sketch7.addConstraint([
    Sketcher.Constraint("Coincident", 0, 2, 1, 1),
    Sketcher.Constraint("Coincident", 1, 2, 2, 1),
    Sketcher.Constraint("Coincident", 2, 2, 3, 1),
    Sketcher.Constraint("Coincident", 3, 2, 4, 1),
    Sketcher.Constraint("Coincident", 4, 2, 5, 1),
    Sketcher.Constraint("Coincident", 5, 2, 6, 1),
    Sketcher.Constraint("Coincident", 6, 2, 7, 1),
    Sketcher.Constraint("Coincident", 7, 2, 8, 1),
    Sketcher.Constraint("Coincident", 8, 2, 9, 1),
    Sketcher.Constraint("Coincident", 9, 2, 10, 1),
    Sketcher.Constraint("Coincident", 10, 2, 11, 1),
    Sketcher.Constraint("Coincident", 11, 2, 0, 1),
    Sketcher.Constraint("Horizontal", 0),
    Sketcher.Constraint("Vertical", 1),
    Sketcher.Constraint("Horizontal", 2),
    Sketcher.Constraint("Vertical", 3),
    Sketcher.Constraint("Horizontal", 4),
    Sketcher.Constraint("Vertical", 5),
    Sketcher.Constraint("Horizontal", 6),
    Sketcher.Constraint("Vertical", 7),
    Sketcher.Constraint("Horizontal", 8),
    Sketcher.Constraint("Vertical", 9),
    Sketcher.Constraint("Horizontal", 10),
    Sketcher.Constraint("Vertical", 11),
    Sketcher.Constraint("Horizontal", 2, 2, 5, 2),
    Sketcher.Constraint("Horizontal", 0, 2, 7, 2),
    Sketcher.Constraint("Vertical", 5, 2, 8, 2),
    Sketcher.Constraint("Vertical", 3, 2, 10, 2),
    Sketcher.Constraint("Equal", 2, 6),
    Sketcher.Constraint("DistanceY", 1, 2, 1, 1, Q("3 mm")),
    Sketcher.Constraint("DistanceY", 3, 2, 3, 1, Q("5 mm")),
    Sketcher.Constraint("DistanceY", 9, 1, 9, 2, Q("7 mm")),
    Sketcher.Constraint("DistanceX", 0, 1, 0, 2, Q("1.2 mm")),
    Sketcher.Constraint("DistanceX", 4, 2, 4, 1, Q("3.2 mm")),
    Sketcher.Constraint("DistanceY", -1, 1, 0, 2, Q("27 mm")),
    Sketcher.Constraint("DistanceX", -1, 1, 0, 2, Q("2.795 mm")),
])
pocket5 = body.newObject("PartDesign::Pocket", "Pocket004")
pocket5.Profile = sketch7
pocket5.Type = "UpToFirst"
pocket5.Reversed = True

# Sketch on XY plane
sketch8 = body.newObject("Sketcher::SketchObject", "Sketch007")
sketch8.AttachmentSupport = (doc.getObject("XY_Plane"), [""])
sketch8.MapMode = "FlatFace"
sketch8.addGeometry([
    Part.LineSegment(App.Vector(-106.5, 34, 0), App.Vector(-106.5, 27, 0)),  # 0
    Part.LineSegment(App.Vector(-106.5, 27, 0), App.Vector(-105.3, 27, 0)),  # 1
    Part.LineSegment(App.Vector(-105.3, 27, 0), App.Vector(-105.3, 24, 0)),  # 2
    Part.LineSegment(App.Vector(-105.3, 24, 0), App.Vector(-106.5, 24, 0)),  # 3
    Part.LineSegment(App.Vector(-106.5, 24, 0), App.Vector(-106.5, 19, 0)),  # 4
    Part.LineSegment(App.Vector(-106.5, 19, 0), App.Vector(-109.7, 19, 0)),  # 5
    Part.LineSegment(App.Vector(-109.7, 19, 0), App.Vector(-109.7, 24, 0)),  # 6
    Part.LineSegment(App.Vector(-109.7, 24, 0), App.Vector(-110.9, 24, 0)),  # 7
    Part.LineSegment(App.Vector(-110.9, 24, 0), App.Vector(-110.9, 27, 0)),  # 8
    Part.LineSegment(App.Vector(-110.9, 27, 0), App.Vector(-109.7, 27, 0)),  # 9
    Part.LineSegment(App.Vector(-109.7, 27, 0), App.Vector(-109.7, 34, 0)),  # 10
    Part.LineSegment(App.Vector(-109.7, 34, 0), App.Vector(-106.5, 34, 0)),  # 11
], False)
sketch8.addConstraint([
    Sketcher.Constraint("Coincident", 0, 2, 1, 1),
    Sketcher.Constraint("Coincident", 1, 2, 2, 1),
    Sketcher.Constraint("Coincident", 2, 2, 3, 1),
    Sketcher.Constraint("Coincident", 3, 2, 4, 1),
    Sketcher.Constraint("Coincident", 4, 2, 5, 1),
    Sketcher.Constraint("Coincident", 5, 2, 6, 1),
    Sketcher.Constraint("Coincident", 6, 2, 7, 1),
    Sketcher.Constraint("Coincident", 7, 2, 8, 1),
    Sketcher.Constraint("Coincident", 8, 2, 9, 1),
    Sketcher.Constraint("Coincident", 9, 2, 10, 1),
    Sketcher.Constraint("Coincident", 10, 2, 11, 1),
    Sketcher.Constraint("Coincident", 11, 2, 0, 1),
    Sketcher.Constraint("Vertical", 0),
    Sketcher.Constraint("Horizontal", 1),
    Sketcher.Constraint("Vertical", 2),
    Sketcher.Constraint("Horizontal", 3),
    Sketcher.Constraint("Vertical", 4),
    Sketcher.Constraint("Horizontal", 5),
    Sketcher.Constraint("Vertical", 6),
    Sketcher.Constraint("Horizontal", 7),
    Sketcher.Constraint("Vertical", 8),
    Sketcher.Constraint("Horizontal", 9),
    Sketcher.Constraint("Vertical", 10),
    Sketcher.Constraint("Horizontal", 11),
    Sketcher.Constraint("Horizontal", 3, 2, 6, 2),
    Sketcher.Constraint("Horizontal", 1, 2, 8, 2),
    Sketcher.Constraint("Vertical", 0, 2, 3, 2),
    Sketcher.Constraint("Vertical", 6, 2, 9, 2),
    Sketcher.Constraint("Equal", 3, 7),
    Sketcher.Constraint("DistanceY", 0, 2, 0, 1, Q("7 mm")),
    Sketcher.Constraint("DistanceY", 2, 2, 2, 1, Q("3 mm")),
    Sketcher.Constraint("DistanceY", 4, 2, 4, 1, Q("5 mm")),
    Sketcher.Constraint("DistanceX", 1, 1, 1, 2, Q("1.2 mm")),
    Sketcher.Constraint("DistanceX", 5, 2, 5, 1, Q("3.2 mm")),
    Sketcher.Constraint("DistanceY", -1, 1, 0, 2, Q("27 mm")),
    Sketcher.Constraint("DistanceX", 0, 2, -1, 1, Q("106.535 mm")),
])
pocket6 = body.newObject("PartDesign::Pocket", "Pocket005")
pocket6.Profile = sketch8
pocket6.Type = "UpToFirst"
pocket6.Reversed = True

doc.recompute()
